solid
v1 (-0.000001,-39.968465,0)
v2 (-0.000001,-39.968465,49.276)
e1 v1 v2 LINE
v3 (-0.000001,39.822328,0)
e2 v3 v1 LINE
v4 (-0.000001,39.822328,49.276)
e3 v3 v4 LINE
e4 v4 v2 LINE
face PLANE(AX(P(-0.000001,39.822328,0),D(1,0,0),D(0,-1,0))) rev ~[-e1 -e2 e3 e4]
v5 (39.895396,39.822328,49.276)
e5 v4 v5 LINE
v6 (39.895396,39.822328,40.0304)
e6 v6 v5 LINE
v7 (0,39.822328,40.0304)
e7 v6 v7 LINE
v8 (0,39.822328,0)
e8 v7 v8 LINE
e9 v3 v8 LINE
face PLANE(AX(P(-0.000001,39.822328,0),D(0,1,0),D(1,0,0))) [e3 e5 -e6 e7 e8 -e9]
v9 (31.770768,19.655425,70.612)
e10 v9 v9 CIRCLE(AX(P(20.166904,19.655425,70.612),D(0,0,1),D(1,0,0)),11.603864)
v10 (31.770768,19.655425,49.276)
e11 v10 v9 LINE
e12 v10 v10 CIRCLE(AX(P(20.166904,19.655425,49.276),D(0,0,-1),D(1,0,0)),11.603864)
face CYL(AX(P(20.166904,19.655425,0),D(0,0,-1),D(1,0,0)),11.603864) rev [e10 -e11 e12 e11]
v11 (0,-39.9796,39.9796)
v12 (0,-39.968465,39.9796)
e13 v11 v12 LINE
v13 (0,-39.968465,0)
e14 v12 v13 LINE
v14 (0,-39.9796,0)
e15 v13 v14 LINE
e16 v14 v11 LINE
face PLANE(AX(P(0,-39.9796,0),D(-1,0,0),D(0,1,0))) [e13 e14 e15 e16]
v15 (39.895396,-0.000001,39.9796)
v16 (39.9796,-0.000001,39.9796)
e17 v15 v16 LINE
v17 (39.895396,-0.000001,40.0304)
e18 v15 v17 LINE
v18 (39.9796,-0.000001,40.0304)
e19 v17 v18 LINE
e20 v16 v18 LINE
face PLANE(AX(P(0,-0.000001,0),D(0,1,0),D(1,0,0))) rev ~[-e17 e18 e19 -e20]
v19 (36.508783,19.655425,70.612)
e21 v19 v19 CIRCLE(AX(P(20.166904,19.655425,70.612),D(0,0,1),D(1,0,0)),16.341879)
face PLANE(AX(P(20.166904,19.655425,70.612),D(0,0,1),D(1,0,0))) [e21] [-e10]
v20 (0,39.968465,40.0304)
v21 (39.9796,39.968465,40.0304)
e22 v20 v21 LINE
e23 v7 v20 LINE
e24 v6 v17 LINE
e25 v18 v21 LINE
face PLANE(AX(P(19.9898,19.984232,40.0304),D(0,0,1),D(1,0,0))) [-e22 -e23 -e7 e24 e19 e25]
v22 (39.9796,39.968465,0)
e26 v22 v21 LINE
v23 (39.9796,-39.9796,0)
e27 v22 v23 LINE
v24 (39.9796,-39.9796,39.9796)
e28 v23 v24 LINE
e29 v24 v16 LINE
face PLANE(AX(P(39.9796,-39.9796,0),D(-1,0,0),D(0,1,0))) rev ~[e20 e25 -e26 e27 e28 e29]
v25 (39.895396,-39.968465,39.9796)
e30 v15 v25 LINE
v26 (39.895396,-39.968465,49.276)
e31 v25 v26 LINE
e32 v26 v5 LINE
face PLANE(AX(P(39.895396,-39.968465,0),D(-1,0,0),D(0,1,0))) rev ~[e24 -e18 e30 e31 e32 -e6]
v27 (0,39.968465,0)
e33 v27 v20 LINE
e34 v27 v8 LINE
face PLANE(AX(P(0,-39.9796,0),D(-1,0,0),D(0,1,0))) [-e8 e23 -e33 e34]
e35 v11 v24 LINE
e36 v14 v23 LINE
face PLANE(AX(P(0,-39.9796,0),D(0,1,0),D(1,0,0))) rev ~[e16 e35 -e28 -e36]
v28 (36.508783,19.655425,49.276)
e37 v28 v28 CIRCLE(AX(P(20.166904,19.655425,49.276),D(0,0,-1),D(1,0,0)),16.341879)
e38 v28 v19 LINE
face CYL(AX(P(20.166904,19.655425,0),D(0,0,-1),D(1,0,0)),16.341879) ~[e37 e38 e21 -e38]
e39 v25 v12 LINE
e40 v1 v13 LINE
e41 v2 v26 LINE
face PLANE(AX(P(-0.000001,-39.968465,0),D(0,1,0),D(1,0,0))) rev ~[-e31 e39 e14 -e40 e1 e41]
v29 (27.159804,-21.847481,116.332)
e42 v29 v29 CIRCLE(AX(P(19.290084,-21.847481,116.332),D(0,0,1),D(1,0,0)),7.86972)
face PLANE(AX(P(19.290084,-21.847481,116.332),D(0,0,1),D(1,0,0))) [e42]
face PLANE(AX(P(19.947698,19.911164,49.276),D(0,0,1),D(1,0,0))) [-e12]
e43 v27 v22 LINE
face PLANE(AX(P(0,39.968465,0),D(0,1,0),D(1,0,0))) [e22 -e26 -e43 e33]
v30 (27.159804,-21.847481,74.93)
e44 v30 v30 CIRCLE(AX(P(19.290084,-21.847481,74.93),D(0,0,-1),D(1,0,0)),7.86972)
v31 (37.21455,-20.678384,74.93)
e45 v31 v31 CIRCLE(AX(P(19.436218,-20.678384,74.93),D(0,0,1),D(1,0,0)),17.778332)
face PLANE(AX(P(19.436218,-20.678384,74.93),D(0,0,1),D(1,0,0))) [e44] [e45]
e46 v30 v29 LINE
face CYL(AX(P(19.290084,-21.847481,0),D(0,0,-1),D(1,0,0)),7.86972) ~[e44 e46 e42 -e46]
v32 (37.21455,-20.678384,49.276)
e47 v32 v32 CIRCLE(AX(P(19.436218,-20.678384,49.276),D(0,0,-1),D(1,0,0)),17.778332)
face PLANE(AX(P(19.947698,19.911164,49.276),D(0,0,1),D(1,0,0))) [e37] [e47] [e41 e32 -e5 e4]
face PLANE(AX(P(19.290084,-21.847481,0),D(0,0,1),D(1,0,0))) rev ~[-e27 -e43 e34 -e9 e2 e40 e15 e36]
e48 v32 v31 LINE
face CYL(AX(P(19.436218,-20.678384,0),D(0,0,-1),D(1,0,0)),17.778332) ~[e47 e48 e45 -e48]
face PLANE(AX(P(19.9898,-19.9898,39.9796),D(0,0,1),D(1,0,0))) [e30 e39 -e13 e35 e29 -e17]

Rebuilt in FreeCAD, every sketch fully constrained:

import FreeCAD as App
import Part
import Sketcher
Q = App.Units.Quantity

doc = App.newDocument("Part")
params = doc.addObject("Spreadsheet::Sheet", "Params")
for row, (alias, value) in enumerate([
    ("sketch1_width", "1.574 in"),
    ("pad1_length", "1.576 in"),
    ("pad2_length", "2.78 in"),
    ("sketch3_width", "1.574 in"),
    ("pad3_length", "1.574 in"),
    ("pad4_length", "2.95 in"),
    ("pad5_length", "1.94 in"),
    ("pad6_length", "4.58 in"),
], start=1):
    params.set(f"A{row}", alias)
    params.set(f"B{row}", "=" + value)
    params.setAlias(f"B{row}", alias)

body = doc.addObject("PartDesign::Body", "Body")

sketch1 = body.newObject("Sketcher::SketchObject", "Sketch")
sketch1.AttachmentSupport = (doc.getObject("XY_Plane"), [""])
sketch1.MapMode = "FlatFace"
sketch1.addGeometry([
    Part.LineSegment(App.Vector(0, 40, 0), App.Vector(0, 0, 0)),
    Part.LineSegment(App.Vector(0, 0, 0), App.Vector(40, 0, 0)),
    Part.LineSegment(App.Vector(40, 0, 0), App.Vector(40, 40, 0)),
    Part.LineSegment(App.Vector(40, 40, 0), App.Vector(0, 40, 0)),
], False)
sketch1.addConstraint([
    Sketcher.Constraint("Coincident", 0, 2, 1, 1),
    Sketcher.Constraint("Coincident", 1, 2, 2, 1),
    Sketcher.Constraint("Coincident", 2, 2, 3, 1),
    Sketcher.Constraint("Coincident", 3, 2, 0, 1),
    Sketcher.Constraint("Vertical", 0),
    Sketcher.Constraint("Horizontal", 1),
    Sketcher.Constraint("Vertical", 2),
    Sketcher.Constraint("Horizontal", 3),
    Sketcher.Constraint("Coincident", 0, 2, -1, 1),
    Sketcher.Constraint("DistanceX", 1, 1, 1, 2, Q("1.574 in")),
    Sketcher.Constraint("DistanceY", 0, 2, 0, 1, Q("39.968465 mm")),
])
sketch1.setExpression("Constraints[9]", "Params.sketch1_width")
pad1 = body.newObject("PartDesign::Pad", "Pad")
pad1.Profile = sketch1
pad1.setExpression("Length", "Params.pad1_length")

sketch2 = body.newObject("Sketcher::SketchObject", "Sketch001")
sketch2.AttachmentSupport = (doc.getObject("XY_Plane"), [""])
sketch2.MapMode = "FlatFace"
sketch2.addGeometry([
    Part.Circle(App.Vector(20, 20, 0), App.Vector(0, 0, 1), 16),
    Part.Circle(App.Vector(20, 20, 0), App.Vector(0, 0, 1), 12),
], False)
sketch2.addConstraint([
    Sketcher.Constraint("Coincident", 1, 3, 0, 3),
    Sketcher.Constraint("Diameter", 0, Q("32.683758 mm")),
    Sketcher.Constraint("Diameter", 1, Q("23.207728 mm")),
    Sketcher.Constraint("DistanceX", -1, 1, 0, 3, Q("20.166904 mm")),
    Sketcher.Constraint("DistanceY", -1, 1, 0, 3, Q("19.655425 mm")),
])
pad2 = body.newObject("PartDesign::Pad", "Pad001")
pad2.Profile = sketch2
pad2.setExpression("Length", "Params.pad2_length")

sketch3 = body.newObject("Sketcher::SketchObject", "Sketch002")
sketch3.AttachmentSupport = (doc.getObject("XY_Plane"), [""])
sketch3.MapMode = "FlatFace"
sketch3.addGeometry([
    Part.LineSegment(App.Vector(0, 0, 0), App.Vector(0, -40, 0)),
    Part.LineSegment(App.Vector(0, -40, 0), App.Vector(40, -40, 0)),
    Part.LineSegment(App.Vector(40, -40, 0), App.Vector(40, 0, 0)),
    Part.LineSegment(App.Vector(40, 0, 0), App.Vector(0, 0, 0)),
], False)
sketch3.addConstraint([
    Sketcher.Constraint("Coincident", 0, 2, 1, 1),
    Sketcher.Constraint("Coincident", 1, 2, 2, 1),
    Sketcher.Constraint("Coincident", 2, 2, 3, 1),
    Sketcher.Constraint("Coincident", 3, 2, 0, 1),
    Sketcher.Constraint("Vertical", 0),
    Sketcher.Constraint("Horizontal", 1),
    Sketcher.Constraint("Vertical", 2),
    Sketcher.Constraint("Horizontal", 3),
    Sketcher.Constraint("Coincident", 3, 2, -1, 1),
    Sketcher.Constraint("Equal", 3, 0),
    Sketcher.Constraint("DistanceX", 1, 1, 1, 2, Q("1.574 in")),
])
sketch3.setExpression("Constraints[10]", "Params.sketch3_width")
pad3 = body.newObject("PartDesign::Pad", "Pad002")
pad3.Profile = sketch3
pad3.setExpression("Length", "Params.pad3_length")

sketch4 = body.newObject("Sketcher::SketchObject", "Sketch003")
sketch4.AttachmentSupport = (doc.getObject("XY_Plane"), [""])
sketch4.MapMode = "FlatFace"
sketch4.addGeometry(Part.Circle(App.Vector(19, -21, 0), App.Vector(0, 0, 1), 18), False)
sketch4.addConstraint([
    Sketcher.Constraint("Diameter", 0, Q("35.556664 mm")),
    Sketcher.Constraint("DistanceX", -1, 1, 0, 3, Q("19.436218 mm")),
    Sketcher.Constraint("DistanceY", 0, 3, -1, 1, Q("20.678384 mm")),
])
pad4 = body.newObject("PartDesign::Pad", "Pad003")
pad4.Profile = sketch4
pad4.setExpression("Length", "Params.pad4_length")

sketch5 = body.newObject("Sketcher::SketchObject", "Sketch004")
sketch5.AttachmentSupport = (doc.getObject("XY_Plane"), [""])
sketch5.MapMode = "FlatFace"
sketch5.addGeometry([
    Part.LineSegment(App.Vector(0, -40, 0), App.Vector(40, -40, 0)),
    Part.LineSegment(App.Vector(40, -40, 0), App.Vector(40, 40, 0)),
    Part.LineSegment(App.Vector(40, 40, 0), App.Vector(0, 40, 0)),
    Part.LineSegment(App.Vector(0, 40, 0), App.Vector(0, -40, 0)),
], False)
sketch5.addConstraint([
    Sketcher.Constraint("Coincident", 0, 2, 1, 1),
    Sketcher.Constraint("Coincident", 1, 2, 2, 1),
    Sketcher.Constraint("Coincident", 2, 2, 3, 1),
    Sketcher.Constraint("Coincident", 3, 2, 0, 1),
    Sketcher.Constraint("Horizontal", 0),
    Sketcher.Constraint("Vertical", 1),
    Sketcher.Constraint("Horizontal", 2),
    Sketcher.Constraint("Vertical", 3),
    Sketcher.Constraint("PointOnObject", 2, 2, -2),
    Sketcher.Constraint("DistanceX", 0, 1, 0, 2, Q("39.895397 mm")),
    Sketcher.Constraint("DistanceY", 1, 1, 1, 2, Q("79.790793 mm")),
    Sketcher.Constraint("DistanceY", -1, 1, 1, 2, Q("39.822328 mm")),
])
pad5 = body.newObject("PartDesign::Pad", "Pad004")
pad5.Profile = sketch5
pad5.setExpression("Length", "Params.pad5_length")

sketch6 = body.newObject("Sketcher::SketchObject", "Sketch005")
sketch6.AttachmentSupport = (doc.getObject("XY_Plane"), [""])
sketch6.MapMode = "FlatFace"
sketch6.addGeometry(Part.Circle(App.Vector(19, -22, 0), App.Vector(0, 0, 1), 8), False)
sketch6.addConstraint([
    Sketcher.Constraint("Diameter", 0, Q("15.73944 mm")),
    Sketcher.Constraint("DistanceY", 0, 3, -1, 1, Q("21.847481 mm")),
    Sketcher.Constraint("DistanceX", -1, 1, 0, 3, Q("19.290084 mm")),
])
pad6 = body.newObject("PartDesign::Pad", "Pad005")
pad6.Profile = sketch6
pad6.setExpression("Length", "Params.pad6_length")

doc.recompute()
